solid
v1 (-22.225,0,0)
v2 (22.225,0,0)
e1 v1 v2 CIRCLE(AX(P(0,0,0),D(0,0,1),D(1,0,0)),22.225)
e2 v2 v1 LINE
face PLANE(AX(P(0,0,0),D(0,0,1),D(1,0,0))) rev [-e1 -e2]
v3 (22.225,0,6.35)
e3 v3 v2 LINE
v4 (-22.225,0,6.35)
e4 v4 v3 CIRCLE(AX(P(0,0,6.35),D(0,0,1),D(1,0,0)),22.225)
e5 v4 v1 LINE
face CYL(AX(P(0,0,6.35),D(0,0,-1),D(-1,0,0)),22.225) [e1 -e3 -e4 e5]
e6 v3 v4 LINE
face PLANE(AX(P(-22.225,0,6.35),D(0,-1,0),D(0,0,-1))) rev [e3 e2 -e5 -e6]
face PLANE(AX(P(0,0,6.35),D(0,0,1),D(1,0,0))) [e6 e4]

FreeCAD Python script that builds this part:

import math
import FreeCAD as App
import Part
import Sketcher
Q = App.Units.Quantity

doc = App.newDocument("Part")
body = doc.addObject("PartDesign::Body", "Body")

# Sketch on XY plane
sketch1 = body.newObject("Sketcher::SketchObject", "Sketch")
sketch1.AttachmentSupport = (doc.getObject("XY_Plane"), [""])
sketch1.MapMode = "FlatFace"
sketch1.addGeometry(Part.LineSegment(App.Vector(22, 0, 0), App.Vector(-22, 0, 0)), False)
sketch1.addGeometry(Part.ArcOfCircle(Part.Circle(App.Vector(0, 0, 0), App.Vector(0, 0, 1), 22), math.radians(180), math.radians(360)), False)
sketch1.addConstraint(Sketcher.Constraint("Coincident", 0, 1, 1, 2))
sketch1.addConstraint(Sketcher.Constraint("Coincident", 1, 1, 0, 2))
sketch1.addConstraint(Sketcher.Constraint("Horizontal", 0))
sketch1.addConstraint(Sketcher.Constraint("Coincident", 1, 3, -1, 1))
sketch1.addConstraint(Sketcher.Constraint("PointOnObject", 0, 1, -1))
sketch1.addConstraint(Sketcher.Constraint("Radius", 1, Q("0.875 in")))
pad1 = body.newObject("PartDesign::Pad", "Pad")
pad1.Profile = sketch1
pad1.Length = Q("0.25 in")

doc.recompute()
